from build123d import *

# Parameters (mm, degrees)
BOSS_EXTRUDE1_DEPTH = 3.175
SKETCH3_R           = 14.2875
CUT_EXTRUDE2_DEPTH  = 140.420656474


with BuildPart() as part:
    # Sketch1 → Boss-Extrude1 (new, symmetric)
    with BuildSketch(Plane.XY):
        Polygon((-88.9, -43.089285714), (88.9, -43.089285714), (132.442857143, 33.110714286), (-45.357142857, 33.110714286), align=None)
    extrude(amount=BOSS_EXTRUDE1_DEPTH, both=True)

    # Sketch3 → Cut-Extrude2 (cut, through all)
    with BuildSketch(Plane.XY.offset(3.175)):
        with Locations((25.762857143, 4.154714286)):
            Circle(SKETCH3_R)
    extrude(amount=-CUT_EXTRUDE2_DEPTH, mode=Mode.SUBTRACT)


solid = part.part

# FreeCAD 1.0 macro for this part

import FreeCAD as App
import Part
import Sketcher

V = App.Vector
Q = App.Units.Quantity

doc = App.newDocument("Part")
params = doc.addObject("Spreadsheet::Sheet", "Params")
for row, (alias, value) in enumerate([
    ("sketch1_width", "7 in"),
    ("pad1_length", "0.25 in"),
    ("sketch2_diameter", "1.125 in"),
], start=1):
    params.set(f"A{row}", alias)
    params.set(f"B{row}", "=" + value)
    params.setAlias(f"B{row}", alias)

body = doc.addObject("PartDesign::Body", "Body")

sketch1 = doc.addObject("Sketcher::SketchObject", "Sketch")
body.addObject(sketch1)
sketch1.AttachmentSupport = (doc.XY_Plane, [""])
sketch1.MapMode = "FlatFace"
sketch1.addGeometry(Part.LineSegment(V(-88.9, -43.089286, 0), V(88.9, -43.089286, 0)), False)
sketch1.addGeometry(Part.LineSegment(V(88.9, -43.089286, 0), V(132.442857, 33.110714, 0)), False)
sketch1.addGeometry(Part.LineSegment(V(132.442857, 33.110714, 0), V(-45.357143, 33.110714, 0)), False)
sketch1.addGeometry(Part.LineSegment(V(-45.357143, 33.110714, 0), V(-88.9, -43.089286, 0)), False)
sketch1.addConstraint(Sketcher.Constraint("Coincident", 0, 2, 1, 1))
sketch1.addConstraint(Sketcher.Constraint("Coincident", 1, 2, 2, 1))
sketch1.addConstraint(Sketcher.Constraint("Coincident", 2, 2, 3, 1))
sketch1.addConstraint(Sketcher.Constraint("Coincident", 3, 2, 0, 1))
sketch1.addConstraint(Sketcher.Constraint("Horizontal", 0))
sketch1.addConstraint(Sketcher.Constraint("Horizontal", 2))
sketch1.addConstraint(Sketcher.Constraint("Parallel", 1, 3))
sketch1.addConstraint(Sketcher.Constraint("DistanceX", 0, 1, 0, 2, Q("7 in")))
sketch1.addConstraint(Sketcher.Constraint("DistanceY", 0, 2, 1, 2, Q("3 in")))
sketch1.addConstraint(Sketcher.Constraint("DistanceX", -1, 1, 0, 2, Q("3.5 in")))
sketch1.addConstraint(Sketcher.Constraint("Distance", 1, 87.763434))
sketch1.addConstraint(Sketcher.Constraint("DistanceY", 0, 2, -1, 1, 43.089286))
sketch1.setExpression("Constraints[7]", "Params.sketch1_width")
pad1 = doc.addObject("PartDesign::Pad", "Pad")
body.addObject(pad1)
pad1.Profile = sketch1
pad1.setExpression("Length", "Params.pad1_length")
pad1.Midplane = True

sketch2 = doc.addObject("Sketcher::SketchObject", "Sketch001")
body.addObject(sketch2)
sketch2.AttachmentSupport = (doc.XY_Plane, [""])
sketch2.MapMode = "FlatFace"
sketch2.AttachmentOffset = App.Placement(V(0, 0, 0.125 * 25.4), App.Rotation())
sketch2.addGeometry(Part.Circle(V(25.762857, 4.154714, 0), V(0, 0, 1), 14.2875), False)
sketch2.addConstraint(Sketcher.Constraint("Diameter", 0, Q("1.125 in")))
sketch2.addConstraint(Sketcher.Constraint("DistanceX", -1, 1, 0, 3, 25.762857))
sketch2.addConstraint(Sketcher.Constraint("DistanceY", -1, 1, 0, 3, 4.154714))
sketch2.setExpression("Constraints[0]", "Params.sketch2_diameter")
pocket1 = doc.addObject("PartDesign::Pocket", "Pocket")
body.addObject(pocket1)
pocket1.Profile = sketch2
pocket1.Type = "ThroughAll"

doc.recompute()
